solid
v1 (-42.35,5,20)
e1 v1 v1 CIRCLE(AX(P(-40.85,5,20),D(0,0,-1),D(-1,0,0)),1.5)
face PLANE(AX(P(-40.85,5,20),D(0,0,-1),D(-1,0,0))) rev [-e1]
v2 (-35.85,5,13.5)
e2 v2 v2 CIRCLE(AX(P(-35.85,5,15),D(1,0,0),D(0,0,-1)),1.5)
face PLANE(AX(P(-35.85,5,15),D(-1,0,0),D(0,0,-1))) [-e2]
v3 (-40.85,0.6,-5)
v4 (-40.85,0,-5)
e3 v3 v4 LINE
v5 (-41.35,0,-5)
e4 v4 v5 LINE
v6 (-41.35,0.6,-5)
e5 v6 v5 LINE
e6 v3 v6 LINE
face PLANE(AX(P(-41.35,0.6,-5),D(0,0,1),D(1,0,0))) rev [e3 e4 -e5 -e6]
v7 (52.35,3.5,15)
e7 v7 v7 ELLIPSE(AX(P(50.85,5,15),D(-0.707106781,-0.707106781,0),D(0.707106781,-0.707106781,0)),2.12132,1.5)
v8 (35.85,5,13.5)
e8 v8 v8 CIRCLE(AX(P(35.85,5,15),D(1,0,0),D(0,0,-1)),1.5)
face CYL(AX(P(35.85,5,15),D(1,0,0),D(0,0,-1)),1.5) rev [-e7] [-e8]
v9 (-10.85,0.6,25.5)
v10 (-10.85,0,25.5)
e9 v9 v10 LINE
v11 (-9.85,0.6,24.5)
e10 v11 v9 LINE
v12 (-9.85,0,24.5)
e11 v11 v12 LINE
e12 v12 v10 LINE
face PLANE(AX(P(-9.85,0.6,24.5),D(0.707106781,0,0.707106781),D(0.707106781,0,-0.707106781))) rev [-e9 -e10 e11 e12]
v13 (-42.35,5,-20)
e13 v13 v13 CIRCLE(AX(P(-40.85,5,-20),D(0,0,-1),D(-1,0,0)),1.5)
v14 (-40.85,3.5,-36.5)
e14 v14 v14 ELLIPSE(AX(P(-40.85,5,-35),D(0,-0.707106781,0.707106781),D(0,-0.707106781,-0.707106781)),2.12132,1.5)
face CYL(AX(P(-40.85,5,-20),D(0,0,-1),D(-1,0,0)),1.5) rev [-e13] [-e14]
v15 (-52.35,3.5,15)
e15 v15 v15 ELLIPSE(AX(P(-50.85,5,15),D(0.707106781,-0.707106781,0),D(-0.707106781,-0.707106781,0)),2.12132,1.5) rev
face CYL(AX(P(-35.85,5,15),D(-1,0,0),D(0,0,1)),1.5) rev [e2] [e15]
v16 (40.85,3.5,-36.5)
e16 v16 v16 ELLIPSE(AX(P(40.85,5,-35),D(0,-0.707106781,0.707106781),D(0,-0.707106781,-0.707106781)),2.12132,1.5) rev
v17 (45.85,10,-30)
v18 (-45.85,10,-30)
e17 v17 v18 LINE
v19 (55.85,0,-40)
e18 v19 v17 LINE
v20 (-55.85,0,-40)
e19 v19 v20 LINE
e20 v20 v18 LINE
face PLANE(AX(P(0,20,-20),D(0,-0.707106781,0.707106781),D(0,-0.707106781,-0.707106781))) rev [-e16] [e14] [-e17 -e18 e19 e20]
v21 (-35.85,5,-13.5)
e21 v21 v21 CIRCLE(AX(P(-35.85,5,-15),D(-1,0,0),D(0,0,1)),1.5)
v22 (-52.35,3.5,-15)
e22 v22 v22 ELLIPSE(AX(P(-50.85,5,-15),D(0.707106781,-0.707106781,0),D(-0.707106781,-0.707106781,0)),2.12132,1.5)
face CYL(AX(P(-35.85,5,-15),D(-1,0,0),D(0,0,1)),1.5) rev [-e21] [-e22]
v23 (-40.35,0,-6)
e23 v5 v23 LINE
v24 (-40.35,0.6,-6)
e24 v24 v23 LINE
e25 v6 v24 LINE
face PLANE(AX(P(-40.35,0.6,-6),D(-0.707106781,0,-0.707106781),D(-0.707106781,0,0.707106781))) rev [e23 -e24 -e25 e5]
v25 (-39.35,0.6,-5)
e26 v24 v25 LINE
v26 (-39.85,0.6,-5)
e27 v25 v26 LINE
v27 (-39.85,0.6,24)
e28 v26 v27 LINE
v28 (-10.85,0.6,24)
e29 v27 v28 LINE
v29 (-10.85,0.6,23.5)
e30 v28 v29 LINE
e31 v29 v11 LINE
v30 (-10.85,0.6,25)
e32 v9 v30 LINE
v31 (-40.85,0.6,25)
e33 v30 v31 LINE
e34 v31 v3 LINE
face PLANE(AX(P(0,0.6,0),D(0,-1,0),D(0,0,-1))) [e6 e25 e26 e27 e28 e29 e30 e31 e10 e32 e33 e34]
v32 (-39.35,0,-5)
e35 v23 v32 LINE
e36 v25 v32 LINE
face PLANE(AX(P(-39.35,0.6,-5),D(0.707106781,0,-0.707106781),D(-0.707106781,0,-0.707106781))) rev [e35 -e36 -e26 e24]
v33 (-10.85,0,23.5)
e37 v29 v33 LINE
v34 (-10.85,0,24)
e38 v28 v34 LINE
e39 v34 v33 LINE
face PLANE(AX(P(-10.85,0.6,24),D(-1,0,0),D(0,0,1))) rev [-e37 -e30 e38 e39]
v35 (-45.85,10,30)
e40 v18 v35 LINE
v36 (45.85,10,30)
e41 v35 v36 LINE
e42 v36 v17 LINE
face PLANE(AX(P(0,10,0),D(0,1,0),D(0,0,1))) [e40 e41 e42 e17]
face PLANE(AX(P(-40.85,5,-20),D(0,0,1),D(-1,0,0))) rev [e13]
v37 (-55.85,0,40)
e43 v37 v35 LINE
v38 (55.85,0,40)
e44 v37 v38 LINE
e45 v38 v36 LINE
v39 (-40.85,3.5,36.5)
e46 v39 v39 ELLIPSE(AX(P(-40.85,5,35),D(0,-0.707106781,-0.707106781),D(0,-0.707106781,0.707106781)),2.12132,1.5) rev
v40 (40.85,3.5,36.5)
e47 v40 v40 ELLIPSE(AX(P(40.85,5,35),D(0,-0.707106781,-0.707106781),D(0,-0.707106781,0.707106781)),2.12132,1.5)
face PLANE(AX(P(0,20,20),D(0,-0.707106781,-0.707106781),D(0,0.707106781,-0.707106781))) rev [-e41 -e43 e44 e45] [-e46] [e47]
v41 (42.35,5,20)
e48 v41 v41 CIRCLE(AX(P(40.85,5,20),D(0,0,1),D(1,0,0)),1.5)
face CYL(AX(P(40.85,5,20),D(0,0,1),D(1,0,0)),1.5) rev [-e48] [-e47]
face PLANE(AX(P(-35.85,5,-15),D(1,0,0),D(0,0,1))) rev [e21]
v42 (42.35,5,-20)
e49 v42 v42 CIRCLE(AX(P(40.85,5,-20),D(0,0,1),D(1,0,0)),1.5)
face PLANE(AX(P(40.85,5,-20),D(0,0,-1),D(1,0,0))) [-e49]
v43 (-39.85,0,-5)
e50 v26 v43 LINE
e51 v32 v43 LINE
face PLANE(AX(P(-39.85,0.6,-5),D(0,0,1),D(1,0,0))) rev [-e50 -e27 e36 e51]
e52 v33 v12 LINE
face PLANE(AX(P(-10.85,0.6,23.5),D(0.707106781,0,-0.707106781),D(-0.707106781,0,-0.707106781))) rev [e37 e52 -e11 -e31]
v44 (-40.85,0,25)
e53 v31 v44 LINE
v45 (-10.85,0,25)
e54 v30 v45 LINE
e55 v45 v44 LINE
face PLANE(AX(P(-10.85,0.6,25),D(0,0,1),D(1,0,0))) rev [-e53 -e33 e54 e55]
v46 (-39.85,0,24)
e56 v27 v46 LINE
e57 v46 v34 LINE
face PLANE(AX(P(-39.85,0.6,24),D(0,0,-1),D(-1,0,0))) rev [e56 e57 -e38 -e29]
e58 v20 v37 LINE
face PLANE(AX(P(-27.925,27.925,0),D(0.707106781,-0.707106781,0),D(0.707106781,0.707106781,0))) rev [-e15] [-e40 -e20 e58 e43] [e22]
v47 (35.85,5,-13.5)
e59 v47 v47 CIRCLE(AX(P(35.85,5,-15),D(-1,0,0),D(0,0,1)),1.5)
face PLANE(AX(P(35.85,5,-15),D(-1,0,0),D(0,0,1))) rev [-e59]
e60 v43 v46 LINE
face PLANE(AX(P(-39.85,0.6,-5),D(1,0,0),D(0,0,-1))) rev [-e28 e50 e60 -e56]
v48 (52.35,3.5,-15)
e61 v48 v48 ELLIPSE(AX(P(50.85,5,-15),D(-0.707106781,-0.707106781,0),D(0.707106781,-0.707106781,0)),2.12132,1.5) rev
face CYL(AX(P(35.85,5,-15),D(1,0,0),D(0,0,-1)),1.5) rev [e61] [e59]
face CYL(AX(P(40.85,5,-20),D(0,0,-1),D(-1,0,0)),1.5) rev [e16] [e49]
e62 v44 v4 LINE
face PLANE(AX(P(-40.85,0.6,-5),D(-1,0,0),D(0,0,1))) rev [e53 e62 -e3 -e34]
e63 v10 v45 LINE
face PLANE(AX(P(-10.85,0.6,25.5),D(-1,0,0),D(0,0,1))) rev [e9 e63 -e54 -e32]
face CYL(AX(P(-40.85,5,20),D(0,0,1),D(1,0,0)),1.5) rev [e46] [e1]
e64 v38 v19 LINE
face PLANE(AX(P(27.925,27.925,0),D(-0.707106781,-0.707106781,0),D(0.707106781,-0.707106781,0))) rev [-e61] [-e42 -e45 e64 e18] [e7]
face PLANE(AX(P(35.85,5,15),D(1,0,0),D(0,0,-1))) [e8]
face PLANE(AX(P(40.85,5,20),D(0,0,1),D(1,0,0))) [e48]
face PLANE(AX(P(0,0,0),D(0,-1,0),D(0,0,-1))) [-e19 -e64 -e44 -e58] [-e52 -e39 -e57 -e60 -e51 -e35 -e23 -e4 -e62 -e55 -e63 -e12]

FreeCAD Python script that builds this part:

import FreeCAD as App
import Part
import Sketcher


def add_polygon(sketch, points):
    """Adds a closed chain of lines whose ends are joined by coincident constraints."""
    first, n = sketch.GeometryCount, len(points)
    for a, b in zip(points, points[1:] + points[:1]):
        sketch.addGeometry(Part.LineSegment(App.Vector(*a, 0), App.Vector(*b, 0)), False)
    for i in range(n):
        sketch.addConstraint(Sketcher.Constraint("Coincident", first + i, 2, first + (i + 1) % n, 1))

doc = App.newDocument("Part")
params = doc.addObject("Spreadsheet::Sheet", "Params")
for row, (alias, value) in enumerate([
    ("sketch1_height", "80 mm"),
    ("sketch1_width", "111.7 mm"),
    ("sketch2_height", "60 mm"),
    ("sketch2_width", "91.7 mm"),
    ("sketch3_diameter", "3 mm"),
    ("pocket1_length", "20 mm"),
    ("sketch4_diameter", "3 mm"),
    ("pocket2_length", "20 mm"),
    ("sketch5_width", "30 mm"),
    ("sketch5_width2", "29 mm"),
    ("sketch5_width3", "0.5 mm"),
    ("pocket3_length", "0.6 mm"),
], start=1):
    params.set(f"A{row}", alias)
    params.set(f"B{row}", "=" + value)
    params.setAlias(f"B{row}", alias)

body = doc.addObject("PartDesign::Body", "Body")

# Sketch on XZ plane
sketch1 = body.newObject("Sketcher::SketchObject", "Sketch")
sketch1.AttachmentSupport = (doc.getObject("XZ_Plane"), [""])
sketch1.MapMode = "FlatFace"
add_polygon(sketch1, [(-56, 40), (56, 40), (56, -40), (-56, -40)])  # lines 0-3
sketch1.addConstraint([
    Sketcher.Constraint("Horizontal", 0),
    Sketcher.Constraint("Vertical", 1),
    Sketcher.Constraint("Horizontal", 2),
    Sketcher.Constraint("Vertical", 3),
    Sketcher.Constraint("Symmetric", 0, 2, 2, 2, -1, 1),
    Sketcher.Constraint("DistanceY", 1, 2, 1, 1, 80.0),
    Sketcher.Constraint("DistanceX", 0, 1, 0, 2, 111.7),
])
sketch1.setExpression("Constraints[9]", "Params.sketch1_height")
sketch1.setExpression("Constraints[10]", "Params.sketch1_width")

# Sketch on XZ plane
sketch2 = body.newObject("Sketcher::SketchObject", "Sketch001")
sketch2.AttachmentSupport = (doc.getObject("XZ_Plane"), [""])
sketch2.MapMode = "FlatFace"
sketch2.AttachmentOffset = App.Placement(App.Vector(0, 0, -10), App.Rotation())
add_polygon(sketch2, [(46, -30), (-46, -30), (-46, 30), (46, 30)])  # lines 0-3
sketch2.addConstraint([
    Sketcher.Constraint("Horizontal", 0),
    Sketcher.Constraint("Vertical", 1),
    Sketcher.Constraint("Horizontal", 2),
    Sketcher.Constraint("Vertical", 3),
    Sketcher.Constraint("Symmetric", 0, 2, 2, 2, -1, 1),
    Sketcher.Constraint("DistanceY", 1, 1, 1, 2, 60.0),
    Sketcher.Constraint("DistanceX", 0, 2, 0, 1, 91.7),
])
sketch2.setExpression("Constraints[9]", "Params.sketch2_height")
sketch2.setExpression("Constraints[10]", "Params.sketch2_width")

additiveloft = body.newObject("PartDesign::AdditiveLoft", "AdditiveLoft")
additiveloft.Profile = sketch1
additiveloft.Sections = [sketch2]

# Sketch on XY plane
sketch3 = body.newObject("Sketcher::SketchObject", "Sketch002")
sketch3.AttachmentSupport = (doc.getObject("XY_Plane"), [""])
sketch3.MapMode = "FlatFace"
sketch3.AttachmentOffset = App.Placement(App.Vector(0, 0, 40), App.Rotation())
sketch3.addGeometry([
    Part.Circle(App.Vector(40.9, 5, 0), App.Vector(0, 0, 1), 1.5),
    Part.Circle(App.Vector(-40.9, 5, 0), App.Vector(0, 0, 1), 1.5),
], False)
sketch3.addConstraint([
    Sketcher.Constraint("Equal", 0, 1),
    Sketcher.Constraint("Symmetric", 0, 3, 1, 3, -2),
    Sketcher.Constraint("Diameter", 0, 3.0),
    Sketcher.Constraint("DistanceY", -1, 1, 0, 3, 5.0),
    Sketcher.Constraint("DistanceX", 1, 3, 0, 3, 81.7),
])
sketch3.setExpression("Constraints[2]", "Params.sketch3_diameter")
pocket1 = body.newObject("PartDesign::Pocket", "Pocket")
pocket1.Profile = sketch3
pocket1.setExpression("Length", "Params.pocket1_length")
doc.recompute()

mirrored = body.newObject("PartDesign::Mirrored", "Mirrored")
mirrored.Originals = [pocket1]
mirrored.MirrorPlane = (doc.getObject("XY_Plane"), [""])
body.Tip = mirrored

# Sketch on YZ plane
sketch4 = body.newObject("Sketcher::SketchObject", "Sketch003")
sketch4.AttachmentSupport = (doc.getObject("YZ_Plane"), [""])
sketch4.MapMode = "FlatFace"
sketch4.AttachmentOffset = App.Placement(App.Vector(0, 0, 55.85), App.Rotation())
sketch4.addGeometry([
    Part.Circle(App.Vector(5, 15, 0), App.Vector(0, 0, 1), 1.5),
    Part.Circle(App.Vector(5, -15, 0), App.Vector(0, 0, 1), 1.5),
], False)
sketch4.addConstraint([
    Sketcher.Constraint("Equal", 0, 1),
    Sketcher.Constraint("Symmetric", 0, 3, 1, 3, -1),
    Sketcher.Constraint("Diameter", 0, 3.0),
    Sketcher.Constraint("DistanceX", -1, 1, 0, 3, 5.0),
    Sketcher.Constraint("DistanceY", -1, 1, 0, 3, 15.0),
])
sketch4.setExpression("Constraints[2]", "Params.sketch4_diameter")
pocket2 = body.newObject("PartDesign::Pocket", "Pocket001")
pocket2.Profile = sketch4
pocket2.setExpression("Length", "Params.pocket2_length")
doc.recompute()

mirrored2 = body.newObject("PartDesign::Mirrored", "Mirrored001")
mirrored2.Originals = [pocket2]
mirrored2.MirrorPlane = (doc.getObject("YZ_Plane"), [""])
body.Tip = mirrored2

# Sketch on XZ plane
sketch5 = body.newObject("Sketcher::SketchObject", "Sketch004")
sketch5.AttachmentSupport = (doc.getObject("XZ_Plane"), [""])
sketch5.MapMode = "FlatFace"
add_polygon(sketch5, [(-10.8, 25), (-40.9, 25), (-40.9, -5), (-41.4, -5), (-40.4, -6), (-39.4, -5), (-39.9, -5), (-39.9, 24), (-10.8, 24), (-10.8, 23.5), (-9.8, 24.5), (-10.8, 25.5)])  # lines 0-11
sketch5.addConstraint([
    Sketcher.Constraint("Horizontal", 0),
    Sketcher.Constraint("Vertical", 1),
    Sketcher.Constraint("Horizontal", 2),
    Sketcher.Constraint("Horizontal", 5),
    Sketcher.Constraint("Vertical", 6),
    Sketcher.Constraint("Horizontal", 7),
    Sketcher.Constraint("Vertical", 8),
    Sketcher.Constraint("Vertical", 11),
    Sketcher.Constraint("Perpendicular", 3, 4),
    Sketcher.Constraint("Parallel", 4, 9),
    Sketcher.Constraint("Perpendicular", 9, 10),
    Sketcher.Constraint("Horizontal", 2, 2, 4, 2),
    Sketcher.Constraint("Vertical", 8, 2, 10, 2),
    Sketcher.Constraint("Equal", 2, 5),
    Sketcher.Constraint("Equal", 0, 1),
    Sketcher.Constraint("Equal", 7, 6),
    Sketcher.Constraint("Equal", 5, 8),
    Sketcher.Constraint("Equal", 8, 11),
    Sketcher.Constraint("Equal", 3, 4),
    Sketcher.Constraint("DistanceX", 0, 2, 0, 1, 30.0),
    Sketcher.Constraint("DistanceX", 7, 1, 7, 2, 29.0),
    Sketcher.Constraint("DistanceX", 2, 2, 2, 1, 0.5),
    Sketcher.Constraint("DistanceY", -1, 1, 0, 2, 25.0),
    Sketcher.Constraint("DistanceX", 0, 2, -1, 1, 40.85),
])
sketch5.setExpression("Constraints[31]", "Params.sketch5_width")
sketch5.setExpression("Constraints[32]", "Params.sketch5_width2")
sketch5.setExpression("Constraints[33]", "Params.sketch5_width3")
pocket3 = body.newObject("PartDesign::Pocket", "Pocket002")
pocket3.Profile = sketch5
pocket3.setExpression("Length", "Params.pocket3_length")

doc.recompute()
